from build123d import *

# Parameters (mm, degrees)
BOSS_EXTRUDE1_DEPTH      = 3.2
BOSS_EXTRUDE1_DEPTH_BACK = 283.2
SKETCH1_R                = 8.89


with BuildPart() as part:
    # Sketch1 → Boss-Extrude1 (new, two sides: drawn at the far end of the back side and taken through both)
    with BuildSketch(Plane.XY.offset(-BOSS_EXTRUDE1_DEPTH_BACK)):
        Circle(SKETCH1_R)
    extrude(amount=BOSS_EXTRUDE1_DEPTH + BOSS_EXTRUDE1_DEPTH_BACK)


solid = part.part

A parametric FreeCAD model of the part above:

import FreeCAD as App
import Part
import Sketcher

V = App.Vector

doc = App.newDocument("Part")
body = doc.addObject("PartDesign::Body", "Body")

# Sketch on XY plane
sketch1 = body.newObject("Sketcher::SketchObject", "Sketch")
sketch1.AttachmentSupport = (doc.getObject("XY_Plane"), [""])
sketch1.MapMode = "FlatFace"
sketch1.addGeometry(Part.Circle(V(0, 0, 0), V(0, 0, 1), 9), False)
sketch1.addConstraint(Sketcher.Constraint("Coincident", 0, 3, -1, 1))
sketch1.addConstraint(Sketcher.Constraint("Diameter", 0, 17.78))
pad1 = body.newObject("PartDesign::Pad", "Pad")
pad1.Profile = sketch1
pad1.Type = "TwoLengths"
pad1.Length = 3.2
pad1.Length2 = 283.2

doc.recompute()
